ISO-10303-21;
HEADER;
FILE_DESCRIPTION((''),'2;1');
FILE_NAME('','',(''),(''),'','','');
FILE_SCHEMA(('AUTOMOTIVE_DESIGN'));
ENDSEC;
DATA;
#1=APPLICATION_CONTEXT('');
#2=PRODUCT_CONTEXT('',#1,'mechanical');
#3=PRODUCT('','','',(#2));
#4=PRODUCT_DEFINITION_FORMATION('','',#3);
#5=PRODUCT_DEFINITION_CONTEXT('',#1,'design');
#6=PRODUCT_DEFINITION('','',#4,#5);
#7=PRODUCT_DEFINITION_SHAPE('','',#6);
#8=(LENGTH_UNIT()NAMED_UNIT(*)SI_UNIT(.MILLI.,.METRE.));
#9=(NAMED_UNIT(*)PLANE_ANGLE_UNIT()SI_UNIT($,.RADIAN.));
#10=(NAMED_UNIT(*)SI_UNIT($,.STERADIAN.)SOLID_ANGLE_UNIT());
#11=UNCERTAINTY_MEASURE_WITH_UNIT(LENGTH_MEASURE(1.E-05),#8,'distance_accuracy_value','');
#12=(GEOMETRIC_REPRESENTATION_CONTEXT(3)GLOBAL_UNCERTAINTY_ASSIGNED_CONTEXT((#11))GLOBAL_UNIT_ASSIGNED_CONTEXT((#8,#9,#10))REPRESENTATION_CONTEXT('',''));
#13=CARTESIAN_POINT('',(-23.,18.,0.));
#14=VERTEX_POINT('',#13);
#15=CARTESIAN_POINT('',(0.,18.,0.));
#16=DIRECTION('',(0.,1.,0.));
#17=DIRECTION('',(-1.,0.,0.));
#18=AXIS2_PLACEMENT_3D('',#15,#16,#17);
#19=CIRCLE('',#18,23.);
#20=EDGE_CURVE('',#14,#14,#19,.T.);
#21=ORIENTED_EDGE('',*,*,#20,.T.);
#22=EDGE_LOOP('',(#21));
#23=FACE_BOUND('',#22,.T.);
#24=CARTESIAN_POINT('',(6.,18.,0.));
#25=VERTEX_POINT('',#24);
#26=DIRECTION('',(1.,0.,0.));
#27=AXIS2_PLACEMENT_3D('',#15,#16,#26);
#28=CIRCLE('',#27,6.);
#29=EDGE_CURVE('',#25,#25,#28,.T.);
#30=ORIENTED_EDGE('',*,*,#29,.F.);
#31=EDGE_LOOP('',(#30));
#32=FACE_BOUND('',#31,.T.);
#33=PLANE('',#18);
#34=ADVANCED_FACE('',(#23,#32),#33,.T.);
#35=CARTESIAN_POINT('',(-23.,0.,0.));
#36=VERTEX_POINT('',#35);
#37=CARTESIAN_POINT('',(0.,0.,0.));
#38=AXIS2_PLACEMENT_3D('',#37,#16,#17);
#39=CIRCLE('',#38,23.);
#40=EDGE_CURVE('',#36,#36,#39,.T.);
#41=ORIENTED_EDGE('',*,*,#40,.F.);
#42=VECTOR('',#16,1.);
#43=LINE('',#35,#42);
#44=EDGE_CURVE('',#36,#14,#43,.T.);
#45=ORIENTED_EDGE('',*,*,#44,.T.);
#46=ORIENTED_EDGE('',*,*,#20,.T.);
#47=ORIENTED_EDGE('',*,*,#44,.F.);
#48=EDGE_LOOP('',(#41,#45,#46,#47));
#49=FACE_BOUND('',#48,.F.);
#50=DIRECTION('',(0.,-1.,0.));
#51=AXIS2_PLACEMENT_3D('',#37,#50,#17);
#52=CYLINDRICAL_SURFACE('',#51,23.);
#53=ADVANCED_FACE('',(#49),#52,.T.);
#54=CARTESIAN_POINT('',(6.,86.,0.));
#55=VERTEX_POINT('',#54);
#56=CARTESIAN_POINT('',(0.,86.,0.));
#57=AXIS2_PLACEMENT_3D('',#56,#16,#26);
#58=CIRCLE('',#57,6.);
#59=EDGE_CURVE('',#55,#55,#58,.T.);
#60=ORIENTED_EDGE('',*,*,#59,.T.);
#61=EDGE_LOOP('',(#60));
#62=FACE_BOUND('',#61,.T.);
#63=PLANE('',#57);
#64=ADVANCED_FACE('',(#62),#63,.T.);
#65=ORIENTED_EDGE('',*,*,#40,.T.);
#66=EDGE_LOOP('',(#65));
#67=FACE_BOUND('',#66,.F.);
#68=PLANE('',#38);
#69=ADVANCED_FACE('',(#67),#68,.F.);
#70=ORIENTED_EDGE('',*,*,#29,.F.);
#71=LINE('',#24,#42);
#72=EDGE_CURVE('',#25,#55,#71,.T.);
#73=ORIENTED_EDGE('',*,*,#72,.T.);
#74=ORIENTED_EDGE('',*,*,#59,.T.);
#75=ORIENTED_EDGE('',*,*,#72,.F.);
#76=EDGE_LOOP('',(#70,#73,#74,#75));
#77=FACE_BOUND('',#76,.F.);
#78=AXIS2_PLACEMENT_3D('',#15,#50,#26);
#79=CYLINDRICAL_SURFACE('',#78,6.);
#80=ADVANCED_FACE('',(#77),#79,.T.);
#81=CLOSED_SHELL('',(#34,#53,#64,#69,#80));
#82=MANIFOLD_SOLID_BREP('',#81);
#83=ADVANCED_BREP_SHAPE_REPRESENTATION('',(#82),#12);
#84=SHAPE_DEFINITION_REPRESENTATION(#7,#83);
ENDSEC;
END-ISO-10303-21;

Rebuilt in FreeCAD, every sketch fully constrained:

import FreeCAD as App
import Part
import Sketcher
from FreeCAD import Vector

doc = App.newDocument("Part")
body = doc.addObject("PartDesign::Body", "Body")

# Sketch on XZ plane
sketch1 = body.newObject("Sketcher::SketchObject", "Sketch")
sketch1.AttachmentSupport = (doc.getObject("XZ_Plane"), [""])
sketch1.MapMode = "FlatFace"
sketch1.addGeometry(Part.Circle(Vector(0, 0, 0), Vector(0, 0, 1), 23), False)
sketch1.addConstraint(Sketcher.Constraint("Coincident", 0, 3, -1, 1))
sketch1.addConstraint(Sketcher.Constraint("Diameter", 0, 46.0))
pad1 = body.newObject("PartDesign::Pad", "Pad")
pad1.Profile = sketch1
pad1.Length = 18
pad1.Reversed = True

# Sketch on XZ plane
sketch2 = body.newObject("Sketcher::SketchObject", "Sketch001")
sketch2.AttachmentSupport = (doc.getObject("XZ_Plane"), [""])
sketch2.MapMode = "FlatFace"
sketch2.AttachmentOffset = App.Placement(Vector(0, 0, -18), App.Rotation())
sketch2.addGeometry(Part.Circle(Vector(0, 0, 0), Vector(0, 0, 1), 6), False)
sketch2.addConstraint(Sketcher.Constraint("Coincident", 0, 3, -1, 1))
sketch2.addConstraint(Sketcher.Constraint("Diameter", 0, 12.0))
pad2 = body.newObject("PartDesign::Pad", "Pad001")
pad2.Profile = sketch2
pad2.Length = 68
pad2.Reversed = True

doc.recompute()
